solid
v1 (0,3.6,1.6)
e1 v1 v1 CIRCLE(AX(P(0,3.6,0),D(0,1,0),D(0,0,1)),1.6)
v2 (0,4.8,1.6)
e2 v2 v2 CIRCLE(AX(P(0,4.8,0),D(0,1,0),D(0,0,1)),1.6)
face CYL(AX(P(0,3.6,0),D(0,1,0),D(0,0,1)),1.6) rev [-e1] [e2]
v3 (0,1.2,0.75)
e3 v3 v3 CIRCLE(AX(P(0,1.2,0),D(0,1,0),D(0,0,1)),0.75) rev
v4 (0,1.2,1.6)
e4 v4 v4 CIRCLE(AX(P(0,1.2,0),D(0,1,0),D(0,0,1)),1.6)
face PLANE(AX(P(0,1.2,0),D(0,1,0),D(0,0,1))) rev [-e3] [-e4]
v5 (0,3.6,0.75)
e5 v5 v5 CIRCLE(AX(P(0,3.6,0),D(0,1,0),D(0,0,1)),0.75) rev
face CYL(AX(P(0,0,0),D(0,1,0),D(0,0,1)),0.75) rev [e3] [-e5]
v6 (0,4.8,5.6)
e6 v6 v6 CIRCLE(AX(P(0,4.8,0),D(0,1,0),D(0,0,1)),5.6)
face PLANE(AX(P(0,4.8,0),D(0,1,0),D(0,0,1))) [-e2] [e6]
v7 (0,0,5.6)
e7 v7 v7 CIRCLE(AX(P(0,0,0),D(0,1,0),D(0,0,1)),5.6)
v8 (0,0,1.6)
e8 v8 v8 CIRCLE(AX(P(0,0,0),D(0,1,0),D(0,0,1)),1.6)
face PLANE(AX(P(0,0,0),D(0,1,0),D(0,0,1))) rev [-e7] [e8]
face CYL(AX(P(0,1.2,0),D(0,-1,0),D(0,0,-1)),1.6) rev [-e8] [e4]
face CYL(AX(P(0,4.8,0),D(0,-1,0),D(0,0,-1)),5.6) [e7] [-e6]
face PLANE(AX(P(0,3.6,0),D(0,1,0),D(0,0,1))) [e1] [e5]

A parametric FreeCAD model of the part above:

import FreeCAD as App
import Part
import Sketcher

V = App.Vector

doc = App.newDocument("Part")
body = doc.addObject("PartDesign::Body", "Body")

sketch1 = doc.addObject("Sketcher::SketchObject", "Sketch")
body.addObject(sketch1)
sketch1.AttachmentSupport = (doc.XZ_Plane, [""])
sketch1.MapMode = "FlatFace"
sketch1.addGeometry(Part.Circle(V(0, 0, 0), V(0, 0, 1), 6), False)
sketch1.addConstraint([
    Sketcher.Constraint("Coincident", 0, 3, -1, 1),
    Sketcher.Constraint("Diameter", 0, 11.2),
])
pad1 = doc.addObject("PartDesign::Pad", "Pad")
body.addObject(pad1)
pad1.Profile = sketch1
pad1.Length = 4.8
pad1.Reversed = True

sketch2 = doc.addObject("Sketcher::SketchObject", "Sketch001")
body.addObject(sketch2)
sketch2.AttachmentSupport = (doc.XZ_Plane, [""])
sketch2.MapMode = "FlatFace"
sketch2.AttachmentOffset = App.Placement(V(0, 0, -4.8), App.Rotation())
sketch2.addGeometry(Part.Circle(V(0, 0, 0), V(0, 0, 1), 0.8), False)
sketch2.addConstraint([
    Sketcher.Constraint("Coincident", 0, 3, -1, 1),
    Sketcher.Constraint("Diameter", 0, 1.5),
])
pocket1 = doc.addObject("PartDesign::Pocket", "Pocket")
body.addObject(pocket1)
pocket1.Profile = sketch2
pocket1.Type = "ThroughAll"
pocket1.Reversed = True

sketch3 = doc.addObject("Sketcher::SketchObject", "Sketch002")
body.addObject(sketch3)
sketch3.AttachmentSupport = (doc.XZ_Plane, [""])
sketch3.MapMode = "FlatFace"
sketch3.AttachmentOffset = App.Placement(V(0, 0, -4.8), App.Rotation())
sketch3.addGeometry(Part.Circle(V(0, 0, 0), V(0, 0, 1), 1.6), False)
sketch3.addConstraint([
    Sketcher.Constraint("Coincident", 0, 3, -1, 1),
    Sketcher.Constraint("Diameter", 0, 3.2),
])
pocket2 = doc.addObject("PartDesign::Pocket", "Pocket001")
body.addObject(pocket2)
pocket2.Profile = sketch3
pocket2.Length = 1.2
pocket2.Reversed = True

sketch4 = doc.addObject("Sketcher::SketchObject", "Sketch003")
body.addObject(sketch4)
sketch4.AttachmentSupport = (doc.XZ_Plane, [""])
sketch4.MapMode = "FlatFace"
sketch4.AttachmentOffset = App.Placement(V(0, 0, -1.2), App.Rotation())
sketch4.addGeometry(Part.Circle(V(0, 0, 0), V(0, 0, 1), 1.6), False)
sketch4.addConstraint([
    Sketcher.Constraint("Coincident", 0, 3, -1, 1),
    Sketcher.Constraint("Diameter", 0, 3.2),
])
pocket3 = doc.addObject("PartDesign::Pocket", "Pocket002")
body.addObject(pocket3)
pocket3.Profile = sketch4
pocket3.Length = 1.2
pocket3.Reversed = True

doc.recompute()
